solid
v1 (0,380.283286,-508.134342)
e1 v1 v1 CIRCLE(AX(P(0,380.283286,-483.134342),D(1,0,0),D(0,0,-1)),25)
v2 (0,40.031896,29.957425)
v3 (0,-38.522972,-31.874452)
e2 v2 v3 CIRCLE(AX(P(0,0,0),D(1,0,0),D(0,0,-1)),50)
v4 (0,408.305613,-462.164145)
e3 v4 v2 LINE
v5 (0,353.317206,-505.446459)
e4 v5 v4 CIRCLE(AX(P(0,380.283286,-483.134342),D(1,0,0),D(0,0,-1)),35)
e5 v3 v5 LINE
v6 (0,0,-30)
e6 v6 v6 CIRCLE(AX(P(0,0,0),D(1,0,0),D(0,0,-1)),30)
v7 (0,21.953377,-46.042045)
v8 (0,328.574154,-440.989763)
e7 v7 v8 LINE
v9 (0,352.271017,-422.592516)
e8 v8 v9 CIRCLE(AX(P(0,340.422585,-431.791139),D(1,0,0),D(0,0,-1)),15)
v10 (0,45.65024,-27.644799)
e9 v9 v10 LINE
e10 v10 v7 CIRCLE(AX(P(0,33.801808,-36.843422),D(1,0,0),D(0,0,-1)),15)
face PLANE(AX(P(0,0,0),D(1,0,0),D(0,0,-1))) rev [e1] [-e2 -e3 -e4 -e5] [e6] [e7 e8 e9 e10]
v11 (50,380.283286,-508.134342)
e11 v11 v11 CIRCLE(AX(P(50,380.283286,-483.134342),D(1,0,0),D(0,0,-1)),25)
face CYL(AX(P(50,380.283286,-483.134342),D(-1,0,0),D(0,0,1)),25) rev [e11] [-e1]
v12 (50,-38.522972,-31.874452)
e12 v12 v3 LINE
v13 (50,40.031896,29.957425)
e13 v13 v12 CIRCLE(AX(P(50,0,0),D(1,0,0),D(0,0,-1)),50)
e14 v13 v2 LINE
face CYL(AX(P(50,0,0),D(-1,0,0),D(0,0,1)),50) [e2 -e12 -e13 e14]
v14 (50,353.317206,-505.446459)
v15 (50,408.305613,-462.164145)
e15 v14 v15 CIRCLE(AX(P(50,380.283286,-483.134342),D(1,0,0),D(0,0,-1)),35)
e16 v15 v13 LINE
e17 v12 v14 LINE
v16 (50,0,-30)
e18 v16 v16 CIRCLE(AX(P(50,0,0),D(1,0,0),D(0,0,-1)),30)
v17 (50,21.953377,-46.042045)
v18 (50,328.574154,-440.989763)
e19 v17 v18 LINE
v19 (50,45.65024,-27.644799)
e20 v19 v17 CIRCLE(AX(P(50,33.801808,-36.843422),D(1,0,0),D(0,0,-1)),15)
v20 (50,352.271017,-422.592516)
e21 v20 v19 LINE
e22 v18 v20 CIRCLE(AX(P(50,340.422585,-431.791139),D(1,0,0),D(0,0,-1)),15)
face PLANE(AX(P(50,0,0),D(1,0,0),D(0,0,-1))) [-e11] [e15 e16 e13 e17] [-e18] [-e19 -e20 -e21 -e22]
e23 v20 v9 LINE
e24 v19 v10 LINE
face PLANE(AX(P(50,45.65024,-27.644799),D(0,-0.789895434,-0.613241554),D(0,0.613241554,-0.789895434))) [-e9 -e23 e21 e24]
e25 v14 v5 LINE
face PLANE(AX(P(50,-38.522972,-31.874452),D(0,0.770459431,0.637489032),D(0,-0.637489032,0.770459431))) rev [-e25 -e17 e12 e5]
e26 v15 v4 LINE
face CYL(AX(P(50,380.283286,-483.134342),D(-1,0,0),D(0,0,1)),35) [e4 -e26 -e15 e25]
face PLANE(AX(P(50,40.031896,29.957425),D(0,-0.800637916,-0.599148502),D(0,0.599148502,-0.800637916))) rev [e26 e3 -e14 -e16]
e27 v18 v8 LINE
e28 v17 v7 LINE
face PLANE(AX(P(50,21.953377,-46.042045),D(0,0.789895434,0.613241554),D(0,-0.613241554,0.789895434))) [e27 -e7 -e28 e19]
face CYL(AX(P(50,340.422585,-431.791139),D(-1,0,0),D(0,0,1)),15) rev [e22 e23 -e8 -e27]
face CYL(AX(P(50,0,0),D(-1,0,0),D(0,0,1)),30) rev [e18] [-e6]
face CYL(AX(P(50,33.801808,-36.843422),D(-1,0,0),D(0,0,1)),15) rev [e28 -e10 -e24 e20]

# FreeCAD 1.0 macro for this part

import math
import FreeCAD as App
import Part
import Sketcher

doc = App.newDocument("Part")
body = doc.addObject("PartDesign::Body", "Body")

sketch1 = doc.addObject("Sketcher::SketchObject", "Sketch")
body.addObject(sketch1)
sketch1.AttachmentSupport = (doc.YZ_Plane, [""])
sketch1.MapMode = "FlatFace"
sketch1.addGeometry(Part.LineSegment(App.Vector(408, -462, 0), App.Vector(40, 30, 0)), False)
sketch1.addGeometry(Part.ArcOfCircle(Part.Circle(App.Vector(0, 0, 0), App.Vector(0, 0, 1), 50), math.radians(37), math.radians(220)), False)
sketch1.addGeometry(Part.LineSegment(App.Vector(-39, -32, 0), App.Vector(353, -505, 0)), False)
sketch1.addGeometry(Part.ArcOfCircle(Part.Circle(App.Vector(380, -483, 0), App.Vector(0, 0, 1), 35), math.radians(-140), math.radians(37)), False)
sketch1.addGeometry(Part.Circle(App.Vector(0, 0, 0), App.Vector(0, 0, 1), 30), False)
sketch1.addGeometry(Part.LineSegment(App.Vector(46, -28, 0), App.Vector(352, -423, 0)), False)
sketch1.addGeometry(Part.ArcOfCircle(Part.Circle(App.Vector(340, -432, 0), App.Vector(0, 0, 1), 15), math.radians(-142), math.radians(38)), False)
sketch1.addGeometry(Part.LineSegment(App.Vector(329, -441, 0), App.Vector(22, -46, 0)), False)
sketch1.addGeometry(Part.ArcOfCircle(Part.Circle(App.Vector(34, -37, 0), App.Vector(0, 0, 1), 15), math.radians(38), math.radians(218)), False)
sketch1.addGeometry(Part.Circle(App.Vector(380, -483, 0), App.Vector(0, 0, 1), 25), False)
sketch1.addConstraint(Sketcher.Constraint("Tangent", 0, 2, 1, 1))
sketch1.addConstraint(Sketcher.Constraint("Tangent", 1, 2, 2, 1))
sketch1.addConstraint(Sketcher.Constraint("Tangent", 2, 2, 3, 1))
sketch1.addConstraint(Sketcher.Constraint("Tangent", 3, 2, 0, 1))
sketch1.addConstraint(Sketcher.Constraint("Tangent", 5, 2, 6, 2))
sketch1.addConstraint(Sketcher.Constraint("Tangent", 6, 1, 7, 1))
sketch1.addConstraint(Sketcher.Constraint("Tangent", 7, 2, 8, 2))
sketch1.addConstraint(Sketcher.Constraint("Tangent", 8, 1, 5, 1))
sketch1.addConstraint(Sketcher.Constraint("Coincident", 1, 3, -1, 1))
sketch1.addConstraint(Sketcher.Constraint("Coincident", 4, 3, -1, 1))
sketch1.addConstraint(Sketcher.Constraint("Coincident", 9, 3, 3, 3))
sketch1.addConstraint(Sketcher.Constraint("Equal", 6, 8))
sketch1.addConstraint(Sketcher.Constraint("Diameter", 4, 60.0))
sketch1.addConstraint(Sketcher.Constraint("Diameter", 9, 50.0))
sketch1.addConstraint(Sketcher.Constraint("Radius", 1, 50.0))
sketch1.addConstraint(Sketcher.Constraint("Radius", 3, 35.0))
sketch1.addConstraint(Sketcher.Constraint("Radius", 6, 15.0))
sketch1.addConstraint(Sketcher.Constraint("Distance", 5, 500.0))
sketch1.addConstraint(Sketcher.Constraint("DistanceY", 8, 1, -1, 1, 27.644799))
sketch1.addConstraint(Sketcher.Constraint("DistanceX", 6, 3, 3, 3, 39.860701))
sketch1.addConstraint(Sketcher.Constraint("DistanceY", 6, 3, -1, 1, 431.791139))
sketch1.addConstraint(Sketcher.Constraint("DistanceX", -1, 1, 8, 3, 33.801808))
sketch1.addConstraint(Sketcher.Constraint("DistanceY", 2, 2, -1, 1, 505.446459))
pad1 = doc.addObject("PartDesign::Pad", "Pad")
body.addObject(pad1)
pad1.Profile = sketch1
pad1.Length = 50

doc.recompute()
